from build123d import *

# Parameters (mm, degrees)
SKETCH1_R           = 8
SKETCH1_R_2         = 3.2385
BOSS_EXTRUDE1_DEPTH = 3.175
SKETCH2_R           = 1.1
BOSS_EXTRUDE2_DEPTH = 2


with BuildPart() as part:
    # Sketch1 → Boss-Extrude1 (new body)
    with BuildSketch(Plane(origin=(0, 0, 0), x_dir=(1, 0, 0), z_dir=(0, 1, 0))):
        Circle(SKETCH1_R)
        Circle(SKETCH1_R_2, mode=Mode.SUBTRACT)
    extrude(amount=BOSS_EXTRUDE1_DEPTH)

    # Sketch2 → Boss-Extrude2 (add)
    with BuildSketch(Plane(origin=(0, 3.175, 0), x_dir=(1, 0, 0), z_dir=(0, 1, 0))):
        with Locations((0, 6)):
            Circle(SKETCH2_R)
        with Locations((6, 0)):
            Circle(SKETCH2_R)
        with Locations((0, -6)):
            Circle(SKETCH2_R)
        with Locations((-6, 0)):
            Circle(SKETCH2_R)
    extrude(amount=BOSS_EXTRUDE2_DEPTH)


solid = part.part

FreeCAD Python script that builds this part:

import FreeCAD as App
import Part
import Sketcher

doc = App.newDocument("Part")
body = doc.addObject("PartDesign::Body", "Body")

sketch1 = body.newObject("Sketcher::SketchObject", "Sketch")
sketch1.AttachmentSupport = (doc.getObject("XZ_Plane"), [""])
sketch1.MapMode = "FlatFace"
sketch1.addGeometry([
    Part.Circle(App.Vector(0, 0, 0), App.Vector(0, 0, 1), 8),
    Part.Circle(App.Vector(0, 0, 0), App.Vector(0, 0, 1), 3.2),
], False)
sketch1.addConstraint([
    Sketcher.Constraint("Coincident", 0, 3, -1, 1),
    Sketcher.Constraint("Coincident", 1, 3, -1, 1),
    Sketcher.Constraint("Diameter", 0, 16.0),
    Sketcher.Constraint("Diameter", 1, 6.477),
])
pad1 = body.newObject("PartDesign::Pad", "Pad")
pad1.Profile = sketch1
pad1.Length = 3.175
pad1.Reversed = True

sketch2 = body.newObject("Sketcher::SketchObject", "Sketch001")
sketch2.AttachmentSupport = (doc.getObject("XZ_Plane"), [""])
sketch2.MapMode = "FlatFace"
sketch2.AttachmentOffset = App.Placement(App.Vector(0, 0, -3.175), App.Rotation())
sketch2.addGeometry([
    Part.Circle(App.Vector(0, -6, 0), App.Vector(0, 0, 1), 1.1),
    Part.Circle(App.Vector(6, 0, 0), App.Vector(0, 0, 1), 1.1),
    Part.Circle(App.Vector(0, 6, 0), App.Vector(0, 0, 1), 1.1),
    Part.Circle(App.Vector(-6, 0, 0), App.Vector(0, 0, 1), 1.1),
], False)
sketch2.addConstraint([
    Sketcher.Constraint("Equal", 0, 1),
    Sketcher.Constraint("Equal", 1, 2),
    Sketcher.Constraint("Equal", 2, 3),
    Sketcher.Constraint("Symmetric", 0, 3, 2, 3, -1, 1),
    Sketcher.Constraint("Symmetric", 1, 3, 3, 3, -1, 1),
    Sketcher.Constraint("PointOnObject", 0, 3, -2),
    Sketcher.Constraint("PointOnObject", 1, 3, -1),
    Sketcher.Constraint("Diameter", 0, 2.2),
    Sketcher.Constraint("DistanceY", 0, 3, -1, 1, 6.0),
    Sketcher.Constraint("DistanceX", -1, 1, 1, 3, 6.0),
])
pad2 = body.newObject("PartDesign::Pad", "Pad001")
pad2.Profile = sketch2
pad2.Length = 2
pad2.Reversed = True

doc.recompute()
